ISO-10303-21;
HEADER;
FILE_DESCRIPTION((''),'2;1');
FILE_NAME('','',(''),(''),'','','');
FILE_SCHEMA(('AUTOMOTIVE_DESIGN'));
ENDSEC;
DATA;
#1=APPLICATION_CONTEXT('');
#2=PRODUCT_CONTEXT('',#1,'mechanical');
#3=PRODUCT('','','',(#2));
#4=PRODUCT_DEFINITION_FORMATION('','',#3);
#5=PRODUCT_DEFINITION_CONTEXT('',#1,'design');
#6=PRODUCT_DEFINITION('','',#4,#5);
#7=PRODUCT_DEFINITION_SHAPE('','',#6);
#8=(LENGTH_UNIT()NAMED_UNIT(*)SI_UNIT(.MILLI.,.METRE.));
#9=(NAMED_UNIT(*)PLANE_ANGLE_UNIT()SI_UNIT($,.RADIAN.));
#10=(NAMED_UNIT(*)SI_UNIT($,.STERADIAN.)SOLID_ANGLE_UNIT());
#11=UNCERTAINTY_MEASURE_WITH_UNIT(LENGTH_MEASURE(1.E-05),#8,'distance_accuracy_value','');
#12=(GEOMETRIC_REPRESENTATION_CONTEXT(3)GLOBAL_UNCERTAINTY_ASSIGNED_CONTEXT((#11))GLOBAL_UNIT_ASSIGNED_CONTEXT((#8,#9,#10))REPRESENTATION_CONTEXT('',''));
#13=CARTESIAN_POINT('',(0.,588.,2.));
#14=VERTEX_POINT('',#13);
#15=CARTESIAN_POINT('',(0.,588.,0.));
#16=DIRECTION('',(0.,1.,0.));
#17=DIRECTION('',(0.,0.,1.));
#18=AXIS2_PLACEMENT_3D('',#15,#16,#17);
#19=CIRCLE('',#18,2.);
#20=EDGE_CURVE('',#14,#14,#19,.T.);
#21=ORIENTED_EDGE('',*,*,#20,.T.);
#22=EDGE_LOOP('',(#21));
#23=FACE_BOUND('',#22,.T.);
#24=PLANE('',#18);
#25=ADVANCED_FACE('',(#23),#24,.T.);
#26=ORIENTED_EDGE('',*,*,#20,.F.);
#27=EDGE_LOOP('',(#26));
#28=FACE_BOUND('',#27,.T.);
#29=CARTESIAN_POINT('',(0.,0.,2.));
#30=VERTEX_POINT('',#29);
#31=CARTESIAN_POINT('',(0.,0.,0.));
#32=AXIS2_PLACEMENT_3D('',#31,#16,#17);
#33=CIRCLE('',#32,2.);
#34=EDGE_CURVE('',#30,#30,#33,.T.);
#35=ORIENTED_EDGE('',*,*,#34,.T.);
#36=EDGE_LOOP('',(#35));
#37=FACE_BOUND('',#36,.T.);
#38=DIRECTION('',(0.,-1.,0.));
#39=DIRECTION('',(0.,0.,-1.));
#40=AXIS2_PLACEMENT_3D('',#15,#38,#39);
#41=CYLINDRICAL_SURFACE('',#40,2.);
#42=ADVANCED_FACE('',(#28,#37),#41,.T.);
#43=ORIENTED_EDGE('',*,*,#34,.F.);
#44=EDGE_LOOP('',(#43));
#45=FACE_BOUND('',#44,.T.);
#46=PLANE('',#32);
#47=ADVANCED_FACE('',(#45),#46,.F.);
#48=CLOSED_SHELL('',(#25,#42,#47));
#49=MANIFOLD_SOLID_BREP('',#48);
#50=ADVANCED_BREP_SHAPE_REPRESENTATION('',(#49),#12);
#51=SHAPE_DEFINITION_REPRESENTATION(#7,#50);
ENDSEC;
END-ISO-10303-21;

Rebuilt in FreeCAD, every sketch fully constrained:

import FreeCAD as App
import Part
import Sketcher

doc = App.newDocument("Part")
body = doc.addObject("PartDesign::Body", "Body")

# Sketch on XZ plane
sketch1 = body.newObject("Sketcher::SketchObject", "Sketch")
sketch1.AttachmentSupport = (doc.getObject("XZ_Plane"), [""])
sketch1.MapMode = "FlatFace"
sketch1.addGeometry(Part.Circle(App.Vector(0, 0, 0), App.Vector(0, 0, 1), 2), False)
sketch1.addConstraint([
    Sketcher.Constraint("Coincident", 0, 3, -1, 1),
    Sketcher.Constraint("Diameter", 0, 4.0),
])
pad1 = body.newObject("PartDesign::Pad", "Pad")
pad1.Profile = sketch1
pad1.Length = 588
pad1.Reversed = True

doc.recompute()
